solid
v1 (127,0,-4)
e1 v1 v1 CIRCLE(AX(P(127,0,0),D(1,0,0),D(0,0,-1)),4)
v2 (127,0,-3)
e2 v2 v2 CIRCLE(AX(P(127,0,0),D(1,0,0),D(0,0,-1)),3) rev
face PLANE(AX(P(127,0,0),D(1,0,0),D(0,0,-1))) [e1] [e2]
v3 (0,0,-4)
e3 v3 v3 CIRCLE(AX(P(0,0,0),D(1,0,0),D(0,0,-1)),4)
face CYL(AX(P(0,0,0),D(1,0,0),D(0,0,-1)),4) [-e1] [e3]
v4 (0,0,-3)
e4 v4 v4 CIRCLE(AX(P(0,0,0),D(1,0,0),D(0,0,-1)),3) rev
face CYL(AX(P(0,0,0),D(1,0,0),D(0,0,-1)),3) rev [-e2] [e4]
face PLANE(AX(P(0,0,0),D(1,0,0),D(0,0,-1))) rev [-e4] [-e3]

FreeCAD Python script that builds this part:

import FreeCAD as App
import Part
import Sketcher
from FreeCAD import Vector

doc = App.newDocument("Part")
params = doc.addObject("Spreadsheet::Sheet", "Params")
for row, (alias, value) in enumerate([
    ("sketch1_diameter", "8 mm"),
    ("sketch1_diameter2", "6 mm"),
    ("sketch2_width", "127 mm"),
], start=1):
    params.set(f"A{row}", alias)
    params.set(f"B{row}", "=" + value)
    params.setAlias(f"B{row}", alias)

body = doc.addObject("PartDesign::Body", "Body")

sketch1 = body.newObject("Sketcher::SketchObject", "Sketch")
sketch1.AttachmentSupport = (doc.getObject("YZ_Plane"), [""])
sketch1.MapMode = "FlatFace"
sketch1.addGeometry(Part.Circle(Vector(0, 0, 0), Vector(0, 0, 1), 4), False)
sketch1.addGeometry(Part.Circle(Vector(0, 0, 0), Vector(0, 0, 1), 3), False)
sketch1.addConstraint(Sketcher.Constraint("Coincident", 0, 3, -1, 1))
sketch1.addConstraint(Sketcher.Constraint("Coincident", 1, 3, -1, 1))
sketch1.addConstraint(Sketcher.Constraint("Diameter", 0, 8.0))
sketch1.addConstraint(Sketcher.Constraint("Diameter", 1, 6.0))
sketch1.setExpression("Constraints[2]", "Params.sketch1_diameter")
sketch1.setExpression("Constraints[3]", "Params.sketch1_diameter2")

sketch2 = body.newObject("Sketcher::SketchObject", "Sketch001")
sketch2.AttachmentSupport = (doc.getObject("XY_Plane"), [""])
sketch2.MapMode = "FlatFace"
sketch2.addGeometry(Part.LineSegment(Vector(0, 0, 0), Vector(127, 0, 0)), False)
sketch2.addConstraint(Sketcher.Constraint("Horizontal", 0))
sketch2.addConstraint(Sketcher.Constraint("Coincident", 0, 1, -1, 1))
sketch2.addConstraint(Sketcher.Constraint("DistanceX", 0, 1, 0, 2, 127.0))
sketch2.setExpression("Constraints[2]", "Params.sketch2_width")
doc.recompute()

additivepipe = body.newObject("PartDesign::AdditivePipe", "AdditivePipe")
additivepipe.Profile = sketch1
additivepipe.Spine = (sketch2, ["Edge1"])

doc.recompute()
